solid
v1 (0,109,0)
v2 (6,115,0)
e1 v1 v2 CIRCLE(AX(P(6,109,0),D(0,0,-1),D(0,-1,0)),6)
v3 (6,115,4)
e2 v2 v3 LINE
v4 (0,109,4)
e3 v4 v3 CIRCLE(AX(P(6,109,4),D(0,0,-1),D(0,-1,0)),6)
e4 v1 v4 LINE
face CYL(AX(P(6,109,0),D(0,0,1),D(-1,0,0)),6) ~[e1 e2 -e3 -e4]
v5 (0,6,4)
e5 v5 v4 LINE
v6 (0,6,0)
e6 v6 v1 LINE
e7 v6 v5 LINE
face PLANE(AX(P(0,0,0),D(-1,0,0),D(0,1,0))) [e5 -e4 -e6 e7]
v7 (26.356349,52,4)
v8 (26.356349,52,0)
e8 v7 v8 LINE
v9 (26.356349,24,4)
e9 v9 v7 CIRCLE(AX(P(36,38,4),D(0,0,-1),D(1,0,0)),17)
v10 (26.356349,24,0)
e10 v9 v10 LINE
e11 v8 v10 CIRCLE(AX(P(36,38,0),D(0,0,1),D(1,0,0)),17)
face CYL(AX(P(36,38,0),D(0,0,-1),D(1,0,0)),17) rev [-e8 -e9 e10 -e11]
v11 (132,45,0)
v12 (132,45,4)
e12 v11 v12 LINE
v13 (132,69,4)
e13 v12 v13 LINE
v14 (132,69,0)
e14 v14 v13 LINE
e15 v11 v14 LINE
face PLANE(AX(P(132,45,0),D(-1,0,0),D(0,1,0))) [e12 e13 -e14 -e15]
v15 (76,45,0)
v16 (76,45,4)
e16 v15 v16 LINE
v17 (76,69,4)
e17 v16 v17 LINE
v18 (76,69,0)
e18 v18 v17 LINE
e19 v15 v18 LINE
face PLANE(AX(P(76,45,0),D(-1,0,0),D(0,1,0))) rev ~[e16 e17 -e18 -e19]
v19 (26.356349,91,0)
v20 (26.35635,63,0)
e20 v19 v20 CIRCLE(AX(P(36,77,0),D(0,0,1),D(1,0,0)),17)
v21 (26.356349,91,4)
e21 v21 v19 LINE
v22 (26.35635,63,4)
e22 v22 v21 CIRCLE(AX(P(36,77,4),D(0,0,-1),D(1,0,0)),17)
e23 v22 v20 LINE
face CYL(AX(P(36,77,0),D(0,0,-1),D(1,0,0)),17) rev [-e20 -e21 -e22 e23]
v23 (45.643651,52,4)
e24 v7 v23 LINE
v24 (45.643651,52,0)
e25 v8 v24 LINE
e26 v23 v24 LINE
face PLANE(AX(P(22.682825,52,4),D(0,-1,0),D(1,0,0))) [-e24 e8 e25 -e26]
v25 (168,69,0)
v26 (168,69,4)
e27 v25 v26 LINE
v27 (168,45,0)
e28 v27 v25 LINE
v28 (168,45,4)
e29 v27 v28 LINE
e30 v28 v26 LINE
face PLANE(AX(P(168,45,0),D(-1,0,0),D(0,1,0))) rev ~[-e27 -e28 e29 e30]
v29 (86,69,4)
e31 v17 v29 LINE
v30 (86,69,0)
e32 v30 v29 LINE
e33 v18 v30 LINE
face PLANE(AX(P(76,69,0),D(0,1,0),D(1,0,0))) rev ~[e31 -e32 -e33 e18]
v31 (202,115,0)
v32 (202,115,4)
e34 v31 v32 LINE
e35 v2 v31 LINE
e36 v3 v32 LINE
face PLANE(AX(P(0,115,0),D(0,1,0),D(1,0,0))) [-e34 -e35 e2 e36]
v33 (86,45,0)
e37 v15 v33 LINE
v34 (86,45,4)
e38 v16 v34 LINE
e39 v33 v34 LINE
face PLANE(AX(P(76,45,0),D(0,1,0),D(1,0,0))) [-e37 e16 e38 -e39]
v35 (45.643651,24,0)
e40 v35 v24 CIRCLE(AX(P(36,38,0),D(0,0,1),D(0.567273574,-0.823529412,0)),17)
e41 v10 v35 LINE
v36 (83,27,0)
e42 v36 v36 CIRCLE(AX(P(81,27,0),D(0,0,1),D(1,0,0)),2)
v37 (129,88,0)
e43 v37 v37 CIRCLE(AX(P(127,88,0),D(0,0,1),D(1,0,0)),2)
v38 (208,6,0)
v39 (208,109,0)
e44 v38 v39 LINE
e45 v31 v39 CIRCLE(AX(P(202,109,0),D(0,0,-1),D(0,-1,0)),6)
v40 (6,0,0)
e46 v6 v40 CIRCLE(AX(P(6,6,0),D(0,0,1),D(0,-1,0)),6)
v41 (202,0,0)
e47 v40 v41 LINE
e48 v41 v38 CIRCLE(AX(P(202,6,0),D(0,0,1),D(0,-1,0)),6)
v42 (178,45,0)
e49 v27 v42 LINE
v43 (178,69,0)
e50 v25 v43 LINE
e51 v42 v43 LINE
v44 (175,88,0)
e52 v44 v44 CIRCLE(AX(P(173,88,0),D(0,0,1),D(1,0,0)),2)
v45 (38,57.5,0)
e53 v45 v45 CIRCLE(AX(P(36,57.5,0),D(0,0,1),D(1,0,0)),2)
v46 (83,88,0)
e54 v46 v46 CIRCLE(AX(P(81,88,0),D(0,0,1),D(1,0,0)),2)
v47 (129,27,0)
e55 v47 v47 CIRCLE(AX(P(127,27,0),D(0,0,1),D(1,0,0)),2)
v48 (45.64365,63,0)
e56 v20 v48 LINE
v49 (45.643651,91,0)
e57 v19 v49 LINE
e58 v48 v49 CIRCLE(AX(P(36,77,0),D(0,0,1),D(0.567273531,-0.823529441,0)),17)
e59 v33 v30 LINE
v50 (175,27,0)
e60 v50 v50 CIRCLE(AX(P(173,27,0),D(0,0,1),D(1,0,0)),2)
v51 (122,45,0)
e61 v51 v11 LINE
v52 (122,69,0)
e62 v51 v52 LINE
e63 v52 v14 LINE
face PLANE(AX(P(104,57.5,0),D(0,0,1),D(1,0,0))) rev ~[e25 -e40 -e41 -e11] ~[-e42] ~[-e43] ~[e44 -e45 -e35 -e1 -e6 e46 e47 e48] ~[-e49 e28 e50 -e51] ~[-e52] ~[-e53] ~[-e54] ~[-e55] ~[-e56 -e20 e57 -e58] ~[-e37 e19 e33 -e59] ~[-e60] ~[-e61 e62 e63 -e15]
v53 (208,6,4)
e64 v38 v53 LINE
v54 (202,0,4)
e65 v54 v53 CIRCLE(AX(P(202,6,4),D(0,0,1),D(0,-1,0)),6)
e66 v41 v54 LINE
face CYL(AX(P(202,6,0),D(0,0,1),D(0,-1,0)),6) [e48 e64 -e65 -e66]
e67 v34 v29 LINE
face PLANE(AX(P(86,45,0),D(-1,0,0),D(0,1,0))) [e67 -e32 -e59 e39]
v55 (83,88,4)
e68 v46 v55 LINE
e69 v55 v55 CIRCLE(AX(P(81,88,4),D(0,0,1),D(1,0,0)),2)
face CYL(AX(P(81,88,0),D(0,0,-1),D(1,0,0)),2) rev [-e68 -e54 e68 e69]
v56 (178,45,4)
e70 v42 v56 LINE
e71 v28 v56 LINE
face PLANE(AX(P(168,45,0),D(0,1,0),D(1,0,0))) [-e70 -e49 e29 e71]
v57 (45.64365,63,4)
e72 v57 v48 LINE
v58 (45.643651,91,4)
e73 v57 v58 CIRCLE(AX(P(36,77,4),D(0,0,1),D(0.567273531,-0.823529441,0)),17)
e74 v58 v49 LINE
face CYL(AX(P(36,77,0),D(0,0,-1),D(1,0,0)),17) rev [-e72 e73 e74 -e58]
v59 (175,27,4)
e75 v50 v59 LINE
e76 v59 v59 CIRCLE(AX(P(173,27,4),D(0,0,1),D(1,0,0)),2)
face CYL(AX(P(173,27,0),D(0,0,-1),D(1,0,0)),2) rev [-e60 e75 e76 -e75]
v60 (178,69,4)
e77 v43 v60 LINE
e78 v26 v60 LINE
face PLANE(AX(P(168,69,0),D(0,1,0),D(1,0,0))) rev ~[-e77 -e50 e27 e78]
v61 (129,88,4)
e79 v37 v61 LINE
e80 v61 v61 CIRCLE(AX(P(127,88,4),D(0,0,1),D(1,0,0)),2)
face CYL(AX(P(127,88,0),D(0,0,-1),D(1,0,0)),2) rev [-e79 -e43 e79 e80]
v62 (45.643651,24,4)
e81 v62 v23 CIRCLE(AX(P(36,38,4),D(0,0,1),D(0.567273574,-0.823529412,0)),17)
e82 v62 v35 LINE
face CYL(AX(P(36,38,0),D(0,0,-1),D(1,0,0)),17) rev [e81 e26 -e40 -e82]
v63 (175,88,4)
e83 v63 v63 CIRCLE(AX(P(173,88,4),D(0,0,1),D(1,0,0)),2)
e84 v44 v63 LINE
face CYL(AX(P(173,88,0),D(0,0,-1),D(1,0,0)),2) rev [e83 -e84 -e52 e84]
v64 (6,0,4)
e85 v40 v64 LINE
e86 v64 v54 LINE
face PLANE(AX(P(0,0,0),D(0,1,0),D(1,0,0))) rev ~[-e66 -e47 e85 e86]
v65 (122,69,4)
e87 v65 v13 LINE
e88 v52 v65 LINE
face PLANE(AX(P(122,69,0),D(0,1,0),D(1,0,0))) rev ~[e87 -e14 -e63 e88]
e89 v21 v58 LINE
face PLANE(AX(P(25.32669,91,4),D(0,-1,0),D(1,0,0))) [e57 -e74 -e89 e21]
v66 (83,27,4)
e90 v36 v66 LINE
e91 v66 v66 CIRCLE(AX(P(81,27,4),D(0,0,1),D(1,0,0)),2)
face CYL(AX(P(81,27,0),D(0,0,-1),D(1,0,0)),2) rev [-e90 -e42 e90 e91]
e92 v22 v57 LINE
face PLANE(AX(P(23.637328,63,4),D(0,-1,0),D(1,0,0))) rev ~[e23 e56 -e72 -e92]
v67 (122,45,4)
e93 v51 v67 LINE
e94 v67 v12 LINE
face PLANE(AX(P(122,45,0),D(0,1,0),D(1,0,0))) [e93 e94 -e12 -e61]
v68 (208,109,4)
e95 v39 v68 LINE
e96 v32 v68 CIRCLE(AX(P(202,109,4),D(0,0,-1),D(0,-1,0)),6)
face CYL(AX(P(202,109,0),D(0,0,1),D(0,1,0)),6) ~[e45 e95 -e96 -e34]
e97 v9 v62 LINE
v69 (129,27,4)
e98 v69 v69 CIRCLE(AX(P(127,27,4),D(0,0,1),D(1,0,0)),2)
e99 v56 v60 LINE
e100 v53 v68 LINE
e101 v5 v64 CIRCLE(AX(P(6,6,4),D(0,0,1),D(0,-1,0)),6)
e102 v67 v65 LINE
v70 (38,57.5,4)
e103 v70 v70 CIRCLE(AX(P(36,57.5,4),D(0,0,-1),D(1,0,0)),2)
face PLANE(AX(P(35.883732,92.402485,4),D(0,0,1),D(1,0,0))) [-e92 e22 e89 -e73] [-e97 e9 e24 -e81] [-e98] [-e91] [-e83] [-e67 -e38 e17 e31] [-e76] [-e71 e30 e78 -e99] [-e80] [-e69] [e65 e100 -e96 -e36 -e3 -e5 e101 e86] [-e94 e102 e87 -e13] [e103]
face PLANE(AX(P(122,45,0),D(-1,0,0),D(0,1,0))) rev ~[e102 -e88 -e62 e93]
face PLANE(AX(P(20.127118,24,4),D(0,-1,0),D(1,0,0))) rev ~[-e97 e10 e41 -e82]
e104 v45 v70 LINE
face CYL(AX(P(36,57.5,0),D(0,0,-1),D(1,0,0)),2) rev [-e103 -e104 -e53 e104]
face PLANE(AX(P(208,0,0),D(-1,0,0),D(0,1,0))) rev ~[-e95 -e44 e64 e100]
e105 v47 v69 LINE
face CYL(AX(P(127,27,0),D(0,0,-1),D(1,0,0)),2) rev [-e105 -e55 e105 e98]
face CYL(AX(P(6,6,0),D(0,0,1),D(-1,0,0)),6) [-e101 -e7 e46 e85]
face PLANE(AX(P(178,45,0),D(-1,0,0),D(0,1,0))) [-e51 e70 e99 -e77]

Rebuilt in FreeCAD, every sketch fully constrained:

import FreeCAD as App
import Part
import Sketcher
Q = App.Units.Quantity


def edges_at(feature, points):
    """Names of the edges that pass closest to the given points."""
    edges = feature.Shape.Edges
    near = lambda p: min(range(len(edges)), key=lambda i: edges[i].distToShape(Part.Vertex(*p))[0])
    return sorted({f"Edge{near(p) + 1}" for p in points})


def add_polygon(sketch, points):
    """Adds a closed chain of lines whose ends are joined by coincident constraints."""
    first, n = sketch.GeometryCount, len(points)
    for a, b in zip(points, points[1:] + points[:1]):
        sketch.addGeometry(Part.LineSegment(App.Vector(*a, 0), App.Vector(*b, 0)), False)
    for i in range(n):
        sketch.addConstraint(Sketcher.Constraint("Coincident", first + i, 2, first + (i + 1) % n, 1))

doc = App.newDocument("Part")
body = doc.addObject("PartDesign::Body", "Body")

sketch1 = body.newObject("Sketcher::SketchObject", "Sketch")
sketch1.AttachmentSupport = (doc.getObject("XY_Plane"), [""])
sketch1.MapMode = "FlatFace"
add_polygon(sketch1, [(0, 115), (0, 0), (208, 0), (208, 115)])
sketch1.addGeometry(Part.Circle(App.Vector(81, 27, 0), App.Vector(0, 0, 1), 2), False)
add_polygon(sketch1, [(86, 45), (76, 45), (76, 69), (86, 69)])
sketch1.addGeometry(Part.Circle(App.Vector(127, 27, 0), App.Vector(0, 0, 1), 2), False)
sketch1.addGeometry(Part.Circle(App.Vector(173, 27, 0), App.Vector(0, 0, 1), 2), False)
add_polygon(sketch1, [(132, 45), (122, 45), (122, 69), (132, 69)])
add_polygon(sketch1, [(178, 45), (168, 45), (168, 69), (178, 69)])
sketch1.addGeometry(Part.Circle(App.Vector(81, 88, 0), App.Vector(0, 0, 1), 2), False)
sketch1.addGeometry(Part.Circle(App.Vector(127, 88, 0), App.Vector(0, 0, 1), 2), False)
sketch1.addGeometry(Part.Circle(App.Vector(173, 88, 0), App.Vector(0, 0, 1), 2), False)
sketch1.addConstraint(Sketcher.Constraint("Vertical", 0))
sketch1.addConstraint(Sketcher.Constraint("Horizontal", 1))
sketch1.addConstraint(Sketcher.Constraint("Vertical", 2))
sketch1.addConstraint(Sketcher.Constraint("Horizontal", 3))
sketch1.addConstraint(Sketcher.Constraint("Horizontal", 5))
sketch1.addConstraint(Sketcher.Constraint("Vertical", 6))
sketch1.addConstraint(Sketcher.Constraint("Horizontal", 7))
sketch1.addConstraint(Sketcher.Constraint("Vertical", 8))
sketch1.addConstraint(Sketcher.Constraint("Horizontal", 11))
sketch1.addConstraint(Sketcher.Constraint("Vertical", 12))
sketch1.addConstraint(Sketcher.Constraint("Horizontal", 13))
sketch1.addConstraint(Sketcher.Constraint("Vertical", 14))
sketch1.addConstraint(Sketcher.Constraint("Horizontal", 15))
sketch1.addConstraint(Sketcher.Constraint("Vertical", 16))
sketch1.addConstraint(Sketcher.Constraint("Horizontal", 17))
sketch1.addConstraint(Sketcher.Constraint("Vertical", 18))
sketch1.addConstraint(Sketcher.Constraint("Coincident", 0, 2, -1, 1))
sketch1.addConstraint(Sketcher.Constraint("Equal", 4, 9))
sketch1.addConstraint(Sketcher.Constraint("Equal", 9, 10))
sketch1.addConstraint(Sketcher.Constraint("Equal", 10, 19))
sketch1.addConstraint(Sketcher.Constraint("Equal", 19, 20))
sketch1.addConstraint(Sketcher.Constraint("Equal", 20, 21))
sketch1.addConstraint(Sketcher.Constraint("Horizontal", 4, 3, 9, 3))
sketch1.addConstraint(Sketcher.Constraint("Horizontal", 9, 3, 10, 3))
sketch1.addConstraint(Sketcher.Constraint("Horizontal", 19, 3, 20, 3))
sketch1.addConstraint(Sketcher.Constraint("Horizontal", 20, 3, 21, 3))
sketch1.addConstraint(Sketcher.Constraint("Horizontal", 8, 2, 11, 2))
sketch1.addConstraint(Sketcher.Constraint("Horizontal", 7, 2, 12, 2))
sketch1.addConstraint(Sketcher.Constraint("Horizontal", 14, 2, 15, 2))
sketch1.addConstraint(Sketcher.Constraint("Horizontal", 13, 2, 16, 2))
sketch1.addConstraint(Sketcher.Constraint("Vertical", 4, 3, 19, 3))
sketch1.addConstraint(Sketcher.Constraint("Vertical", 9, 3, 20, 3))
sketch1.addConstraint(Sketcher.Constraint("Vertical", 10, 3, 21, 3))
sketch1.addConstraint(Sketcher.Constraint("Equal", 7, 11))
sketch1.addConstraint(Sketcher.Constraint("Equal", 13, 15))
sketch1.addConstraint(Sketcher.Constraint("Diameter", 4, Q("4 mm")))
sketch1.addConstraint(Sketcher.Constraint("DistanceX", 1, 1, 1, 2, Q("208 mm")))
sketch1.addConstraint(Sketcher.Constraint("DistanceX", 5, 2, 5, 1, Q("10 mm")))
sketch1.addConstraint(Sketcher.Constraint("DistanceY", 0, 2, 0, 1, Q("115 mm")))
sketch1.addConstraint(Sketcher.Constraint("DistanceY", 6, 1, 6, 2, Q("24 mm")))
sketch1.addConstraint(Sketcher.Constraint("DistanceX", -1, 1, 4, 3, Q("81 mm")))
sketch1.addConstraint(Sketcher.Constraint("DistanceY", -1, 1, 4, 3, Q("27 mm")))
sketch1.addConstraint(Sketcher.Constraint("DistanceX", -1, 1, 9, 3, Q("127 mm")))
sketch1.addConstraint(Sketcher.Constraint("DistanceX", -1, 1, 10, 3, Q("173 mm")))
sketch1.addConstraint(Sketcher.Constraint("DistanceY", -1, 1, 19, 3, Q("88 mm")))
sketch1.addConstraint(Sketcher.Constraint("DistanceX", -1, 1, 5, 2, Q("76 mm")))
sketch1.addConstraint(Sketcher.Constraint("DistanceY", -1, 1, 5, 2, Q("45 mm")))
sketch1.addConstraint(Sketcher.Constraint("DistanceX", -1, 1, 11, 2, Q("122 mm")))
sketch1.addConstraint(Sketcher.Constraint("DistanceX", -1, 1, 15, 2, Q("168 mm")))
pad1 = body.newObject("PartDesign::Pad", "Pad")
pad1.Profile = sketch1
pad1.Length = 4
doc.recompute()

fillet = body.newObject("PartDesign::Fillet", "Fillet")
fillet.Base = (pad1, edges_at(pad1, [
    (0, 115, 2),
    (208, 115, 2),
    (208, 0, 2),
    (0, 0, 2),
]))
fillet.Radius = 6

sketch2 = body.newObject("Sketcher::SketchObject", "Sketch001")
sketch2.AttachmentSupport = (doc.getObject("XY_Plane"), [""])
sketch2.MapMode = "FlatFace"
sketch2.addGeometry(Part.Circle(App.Vector(36, 57.5, 0), App.Vector(0, 0, 1), 2), False)
sketch2.addGeometry(Part.Circle(App.Vector(36, 77, 0), App.Vector(0, 0, 1), 17), False)
sketch2.addGeometry(Part.Circle(App.Vector(36, 38, 0), App.Vector(0, 0, 1), 17), False)
sketch2.addConstraint(Sketcher.Constraint("Equal", 1, 2))
sketch2.addConstraint(Sketcher.Constraint("Vertical", 0, 3, 1, 3))
sketch2.addConstraint(Sketcher.Constraint("Vertical", 1, 3, 2, 3))
sketch2.addConstraint(Sketcher.Constraint("Diameter", 0, Q("4 mm")))
sketch2.addConstraint(Sketcher.Constraint("Diameter", 1, Q("34 mm")))
sketch2.addConstraint(Sketcher.Constraint("DistanceX", -1, 1, 0, 3, Q("36 mm")))
sketch2.addConstraint(Sketcher.Constraint("DistanceY", -1, 1, 1, 3, Q("77 mm")))
sketch2.addConstraint(Sketcher.Constraint("DistanceY", -1, 1, 2, 3, Q("38 mm")))
sketch2.addConstraint(Sketcher.Constraint("DistanceY", -1, 1, 0, 3, Q("57.5 mm")))
pocket1 = body.newObject("PartDesign::Pocket", "Pocket")
pocket1.Profile = sketch2
pocket1.Length = 25
pocket1.Reversed = True

sketch3 = body.newObject("Sketcher::SketchObject", "Sketch002")
sketch3.AttachmentSupport = (doc.getObject("XY_Plane"), [""])
sketch3.MapMode = "FlatFace"
sketch3.AttachmentOffset = App.Placement(App.Vector(0, 0, 4), App.Rotation())
add_polygon(sketch3, [(32.74464, 94.836249), (25.32669, 91), (46.063566, 91), (43.255925, 94.420469)])
add_polygon(sketch3, [(23.637328, 63), (23.637328, 59.794852), (51.187966, 59.794852), (51.187966, 63)])
add_polygon(sketch3, [(22.682825, 55.037914), (22.682825, 52), (51.711809, 52), (51.711809, 55.037914)])
add_polygon(sketch3, [(20.127118, 24), (20.127118, 21), (53.351317, 21), (53.351317, 24)])
sketch3.addConstraint(Sketcher.Constraint("Horizontal", 1))
sketch3.addConstraint(Sketcher.Constraint("Vertical", 4))
sketch3.addConstraint(Sketcher.Constraint("Horizontal", 5))
sketch3.addConstraint(Sketcher.Constraint("Vertical", 6))
sketch3.addConstraint(Sketcher.Constraint("Horizontal", 7))
sketch3.addConstraint(Sketcher.Constraint("Vertical", 8))
sketch3.addConstraint(Sketcher.Constraint("Horizontal", 9))
sketch3.addConstraint(Sketcher.Constraint("Vertical", 10))
sketch3.addConstraint(Sketcher.Constraint("Horizontal", 11))
sketch3.addConstraint(Sketcher.Constraint("Vertical", 12))
sketch3.addConstraint(Sketcher.Constraint("Horizontal", 13))
sketch3.addConstraint(Sketcher.Constraint("Vertical", 14))
sketch3.addConstraint(Sketcher.Constraint("Horizontal", 15))
sketch3.addConstraint(Sketcher.Constraint("DistanceY", 12, 2, 12, 1, Q("3 mm")))
sketch3.addConstraint(Sketcher.Constraint("DistanceY", -1, 1, 0, 2, Q("91 mm")))
sketch3.addConstraint(Sketcher.Constraint("DistanceY", -1, 1, 6, 2, Q("63 mm")))
sketch3.addConstraint(Sketcher.Constraint("DistanceY", -1, 1, 8, 2, Q("52 mm")))
sketch3.addConstraint(Sketcher.Constraint("DistanceY", -1, 1, 12, 2, Q("21 mm")))
sketch3.addConstraint(Sketcher.Constraint("DistanceX", 13, 1, 13, 2, Q("33.224199 mm")))
sketch3.addConstraint(Sketcher.Constraint("DistanceX", 5, 1, 5, 2, Q("27.550638 mm")))
sketch3.addConstraint(Sketcher.Constraint("DistanceX", 1, 2, 5, 2, Q("5.1244 mm")))
sketch3.addConstraint(Sketcher.Constraint("DistanceX", 1, 1, 1, 2, Q("20.736876 mm")))
sketch3.addConstraint(Sketcher.Constraint("DistanceX", 9, 1, 9, 2, Q("29.028984 mm")))
sketch3.addConstraint(Sketcher.Constraint("DistanceY", 4, 2, 4, 1, Q("3.205147 mm")))
sketch3.addConstraint(Sketcher.Constraint("DistanceY", 8, 2, 8, 1, Q("3.037915 mm")))
sketch3.addConstraint(Sketcher.Constraint("DistanceX", -1, 1, 0, 2, Q("25.32669 mm")))
sketch3.addConstraint(Sketcher.Constraint("DistanceY", -1, 1, 2, 2, Q("94.420469 mm")))
sketch3.addConstraint(Sketcher.Constraint("DistanceX", -1, 1, 3, 2, Q("32.74464 mm")))
sketch3.addConstraint(Sketcher.Constraint("DistanceY", -1, 1, 3, 2, Q("94.836249 mm")))
sketch3.addConstraint(Sketcher.Constraint("DistanceX", -1, 1, 9, 2, Q("51.711809 mm")))
sketch3.addConstraint(Sketcher.Constraint("DistanceX", 2, 2, 1, 2, Q("2.807641 mm")))
sketch3.addConstraint(Sketcher.Constraint("DistanceX", 12, 2, 4, 2, Q("3.51021 mm")))
pad2 = body.newObject("PartDesign::Pad", "Pad001")
pad2.Profile = sketch3
pad2.Length = 4
pad2.Reversed = True

doc.recompute()
